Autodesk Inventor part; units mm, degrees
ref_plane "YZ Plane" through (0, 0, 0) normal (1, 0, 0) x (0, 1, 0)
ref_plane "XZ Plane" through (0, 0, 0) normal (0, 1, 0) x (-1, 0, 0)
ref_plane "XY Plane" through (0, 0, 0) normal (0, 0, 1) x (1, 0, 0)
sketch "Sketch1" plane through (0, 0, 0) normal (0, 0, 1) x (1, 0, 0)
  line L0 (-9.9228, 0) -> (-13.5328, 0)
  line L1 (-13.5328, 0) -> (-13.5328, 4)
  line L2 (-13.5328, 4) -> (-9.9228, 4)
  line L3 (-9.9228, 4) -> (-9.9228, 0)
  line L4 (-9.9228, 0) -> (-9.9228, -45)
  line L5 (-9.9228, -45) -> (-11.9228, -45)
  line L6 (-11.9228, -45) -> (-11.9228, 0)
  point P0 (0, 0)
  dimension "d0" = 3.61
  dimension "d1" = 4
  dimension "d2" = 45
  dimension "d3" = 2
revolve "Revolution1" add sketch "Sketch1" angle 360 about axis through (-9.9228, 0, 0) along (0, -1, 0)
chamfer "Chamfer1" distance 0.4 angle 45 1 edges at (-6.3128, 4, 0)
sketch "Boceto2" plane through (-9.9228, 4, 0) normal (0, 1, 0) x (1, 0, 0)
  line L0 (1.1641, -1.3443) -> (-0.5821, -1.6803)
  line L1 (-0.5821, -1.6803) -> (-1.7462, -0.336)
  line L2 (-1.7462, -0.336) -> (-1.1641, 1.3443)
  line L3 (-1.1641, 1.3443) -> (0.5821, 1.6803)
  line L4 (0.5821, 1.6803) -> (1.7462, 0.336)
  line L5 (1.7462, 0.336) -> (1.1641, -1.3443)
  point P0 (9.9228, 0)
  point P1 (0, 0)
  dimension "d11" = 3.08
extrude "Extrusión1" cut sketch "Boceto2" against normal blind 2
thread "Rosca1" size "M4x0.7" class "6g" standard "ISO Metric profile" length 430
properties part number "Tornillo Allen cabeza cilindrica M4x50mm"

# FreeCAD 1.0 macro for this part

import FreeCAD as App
import Part
import Sketcher
Q = App.Units.Quantity


def edges_at(feature, points):
    """Names of the edges that pass closest to the given points."""
    edges = feature.Shape.Edges
    near = lambda p: min(range(len(edges)), key=lambda i: edges[i].distToShape(Part.Vertex(*p))[0])
    return sorted({f"Edge{near(p) + 1}" for p in points})

doc = App.newDocument("Part")
params = doc.addObject("Spreadsheet::Sheet", "Params")
for row, (alias, value) in enumerate([
    ("sketch1_width", "2 mm"),
    ("sketch1_height", "4 mm"),
    ("sketch1_height2", "45 mm"),
    ("sketch1_width2", "3.61 mm"),
    ("revolution_angle", "360 deg"),
    ("chamfer_size", "0.4 mm"),
    ("pocket1_length", "2 mm"),
], start=1):
    params.set(f"A{row}", alias)
    params.set(f"B{row}", "=" + value)
    params.setAlias(f"B{row}", alias)

body = doc.addObject("PartDesign::Body", "Body")

# Sketch on XY plane
sketch1 = body.newObject("Sketcher::SketchObject", "Sketch")
sketch1.AttachmentSupport = (doc.getObject("XY_Plane"), [""])
sketch1.MapMode = "FlatFace"
sketch1.addGeometry(Part.LineSegment(App.Vector(-9.9228, -45, 0), App.Vector(-9.9228, 4, 0)), False)
sketch1.addGeometry(Part.LineSegment(App.Vector(-9.9228, 4, 0), App.Vector(-13.5328, 4, 0)), False)
sketch1.addGeometry(Part.LineSegment(App.Vector(-13.5328, 4, 0), App.Vector(-13.5328, 0, 0)), False)
sketch1.addGeometry(Part.LineSegment(App.Vector(-13.5328, 0, 0), App.Vector(-11.9228, 0, 0)), False)
sketch1.addGeometry(Part.LineSegment(App.Vector(-11.9228, 0, 0), App.Vector(-11.9228, -45, 0)), False)
sketch1.addGeometry(Part.LineSegment(App.Vector(-11.9228, -45, 0), App.Vector(-9.9228, -45, 0)), False)
sketch1.addGeometry(Part.LineSegment(App.Vector(-9.9228, 4, 0), App.Vector(-9.9228, -45, 0)), True)  # axis
sketch1.addConstraint(Sketcher.Constraint("Coincident", 0, 2, 1, 1))
sketch1.addConstraint(Sketcher.Constraint("Coincident", 1, 2, 2, 1))
sketch1.addConstraint(Sketcher.Constraint("Coincident", 2, 2, 3, 1))
sketch1.addConstraint(Sketcher.Constraint("Coincident", 3, 2, 4, 1))
sketch1.addConstraint(Sketcher.Constraint("Coincident", 4, 2, 5, 1))
sketch1.addConstraint(Sketcher.Constraint("Coincident", 5, 2, 0, 1))
sketch1.addConstraint(Sketcher.Constraint("Vertical", 0))
sketch1.addConstraint(Sketcher.Constraint("Horizontal", 1))
sketch1.addConstraint(Sketcher.Constraint("Vertical", 2))
sketch1.addConstraint(Sketcher.Constraint("Horizontal", 3))
sketch1.addConstraint(Sketcher.Constraint("Vertical", 4))
sketch1.addConstraint(Sketcher.Constraint("Horizontal", 5))
sketch1.addConstraint(Sketcher.Constraint("Vertical", 6))
sketch1.addConstraint(Sketcher.Constraint("Coincident", 6, 1, 0, 2))
sketch1.addConstraint(Sketcher.Constraint("PointOnObject", 2, 2, -1))
sketch1.addConstraint(Sketcher.Constraint("Horizontal", 4, 2, 6, 2))
sketch1.addConstraint(Sketcher.Constraint("DistanceX", 5, 1, 5, 2, Q("2 mm")))
sketch1.addConstraint(Sketcher.Constraint("DistanceY", 2, 2, 2, 1, Q("4 mm")))
sketch1.addConstraint(Sketcher.Constraint("DistanceY", 4, 2, 4, 1, Q("45 mm")))
sketch1.addConstraint(Sketcher.Constraint("DistanceX", 1, 2, 1, 1, Q("3.61 mm")))
sketch1.addConstraint(Sketcher.Constraint("DistanceX", 0, 2, -1, 1, Q("9.9228 mm")))
sketch1.setExpression("Constraints[16]", "Params.sketch1_width")
sketch1.setExpression("Constraints[17]", "Params.sketch1_height")
sketch1.setExpression("Constraints[18]", "Params.sketch1_height2")
sketch1.setExpression("Constraints[19]", "Params.sketch1_width2")
revolution = body.newObject("PartDesign::Revolution", "Revolution")
revolution.Profile = sketch1
revolution.ReferenceAxis = (sketch1, ["Axis0"])
revolution.setExpression("Angle", "Params.revolution_angle")
doc.recompute()

chamfer = body.newObject("PartDesign::Chamfer", "Chamfer")
chamfer.Base = (revolution, edges_at(revolution, [(-6.313, 4, 0)]))
chamfer.setExpression("Size", "Params.chamfer_size")

# Sketch on XZ plane
sketch2 = body.newObject("Sketcher::SketchObject", "Sketch001")
sketch2.AttachmentSupport = (doc.getObject("XZ_Plane"), [""])
sketch2.MapMode = "FlatFace"
sketch2.AttachmentOffset = App.Placement(App.Vector(0, 0, -4), App.Rotation())
sketch2.addGeometry(Part.LineSegment(App.Vector(-10.5049, 1.6803, 0), App.Vector(-8.7587, 1.3443, 0)), False)
sketch2.addGeometry(Part.LineSegment(App.Vector(-8.7587, 1.3443, 0), App.Vector(-8.1766, -0.336, 0)), False)
sketch2.addGeometry(Part.LineSegment(App.Vector(-8.1766, -0.336, 0), App.Vector(-9.3407, -1.6803, 0)), False)
sketch2.addGeometry(Part.LineSegment(App.Vector(-9.3407, -1.6803, 0), App.Vector(-11.0869, -1.3443, 0)), False)
sketch2.addGeometry(Part.LineSegment(App.Vector(-11.0869, -1.3443, 0), App.Vector(-11.669, 0.336, 0)), False)
sketch2.addGeometry(Part.LineSegment(App.Vector(-11.669, 0.336, 0), App.Vector(-10.5049, 1.6803, 0)), False)
sketch2.addConstraint(Sketcher.Constraint("Coincident", 0, 2, 1, 1))
sketch2.addConstraint(Sketcher.Constraint("Coincident", 1, 2, 2, 1))
sketch2.addConstraint(Sketcher.Constraint("Coincident", 2, 2, 3, 1))
sketch2.addConstraint(Sketcher.Constraint("Coincident", 3, 2, 4, 1))
sketch2.addConstraint(Sketcher.Constraint("Coincident", 4, 2, 5, 1))
sketch2.addConstraint(Sketcher.Constraint("Coincident", 5, 2, 0, 1))
sketch2.addConstraint(Sketcher.Constraint("Parallel", 0, 3))
sketch2.addConstraint(Sketcher.Constraint("Parallel", 1, 4))
sketch2.addConstraint(Sketcher.Constraint("Parallel", 2, 5))
sketch2.addConstraint(Sketcher.Constraint("Equal", 0, 1))
sketch2.addConstraint(Sketcher.Constraint("Equal", 1, 2))
sketch2.addConstraint(Sketcher.Constraint("Equal", 2, 3))
sketch2.addConstraint(Sketcher.Constraint("Angle", 2, Q("-130.891 deg")))
sketch2.addConstraint(Sketcher.Constraint("DistanceY", 1, 2, -1, 1, Q("0.336 mm")))
sketch2.addConstraint(Sketcher.Constraint("DistanceX", 3, 2, -1, 1, Q("11.087 mm")))
sketch2.addConstraint(Sketcher.Constraint("DistanceX", 4, 2, -1, 1, Q("11.669 mm")))
sketch2.addConstraint(Sketcher.Constraint("DistanceY", -1, 1, 4, 2, Q("0.336 mm")))
sketch2.addConstraint(Sketcher.Constraint("DistanceX", 5, 2, -1, 1, Q("10.505 mm")))
pocket1 = body.newObject("PartDesign::Pocket", "Pocket")
pocket1.Profile = sketch2
pocket1.setExpression("Length", "Params.pocket1_length")
pocket1.Reversed = True

doc.recompute()
